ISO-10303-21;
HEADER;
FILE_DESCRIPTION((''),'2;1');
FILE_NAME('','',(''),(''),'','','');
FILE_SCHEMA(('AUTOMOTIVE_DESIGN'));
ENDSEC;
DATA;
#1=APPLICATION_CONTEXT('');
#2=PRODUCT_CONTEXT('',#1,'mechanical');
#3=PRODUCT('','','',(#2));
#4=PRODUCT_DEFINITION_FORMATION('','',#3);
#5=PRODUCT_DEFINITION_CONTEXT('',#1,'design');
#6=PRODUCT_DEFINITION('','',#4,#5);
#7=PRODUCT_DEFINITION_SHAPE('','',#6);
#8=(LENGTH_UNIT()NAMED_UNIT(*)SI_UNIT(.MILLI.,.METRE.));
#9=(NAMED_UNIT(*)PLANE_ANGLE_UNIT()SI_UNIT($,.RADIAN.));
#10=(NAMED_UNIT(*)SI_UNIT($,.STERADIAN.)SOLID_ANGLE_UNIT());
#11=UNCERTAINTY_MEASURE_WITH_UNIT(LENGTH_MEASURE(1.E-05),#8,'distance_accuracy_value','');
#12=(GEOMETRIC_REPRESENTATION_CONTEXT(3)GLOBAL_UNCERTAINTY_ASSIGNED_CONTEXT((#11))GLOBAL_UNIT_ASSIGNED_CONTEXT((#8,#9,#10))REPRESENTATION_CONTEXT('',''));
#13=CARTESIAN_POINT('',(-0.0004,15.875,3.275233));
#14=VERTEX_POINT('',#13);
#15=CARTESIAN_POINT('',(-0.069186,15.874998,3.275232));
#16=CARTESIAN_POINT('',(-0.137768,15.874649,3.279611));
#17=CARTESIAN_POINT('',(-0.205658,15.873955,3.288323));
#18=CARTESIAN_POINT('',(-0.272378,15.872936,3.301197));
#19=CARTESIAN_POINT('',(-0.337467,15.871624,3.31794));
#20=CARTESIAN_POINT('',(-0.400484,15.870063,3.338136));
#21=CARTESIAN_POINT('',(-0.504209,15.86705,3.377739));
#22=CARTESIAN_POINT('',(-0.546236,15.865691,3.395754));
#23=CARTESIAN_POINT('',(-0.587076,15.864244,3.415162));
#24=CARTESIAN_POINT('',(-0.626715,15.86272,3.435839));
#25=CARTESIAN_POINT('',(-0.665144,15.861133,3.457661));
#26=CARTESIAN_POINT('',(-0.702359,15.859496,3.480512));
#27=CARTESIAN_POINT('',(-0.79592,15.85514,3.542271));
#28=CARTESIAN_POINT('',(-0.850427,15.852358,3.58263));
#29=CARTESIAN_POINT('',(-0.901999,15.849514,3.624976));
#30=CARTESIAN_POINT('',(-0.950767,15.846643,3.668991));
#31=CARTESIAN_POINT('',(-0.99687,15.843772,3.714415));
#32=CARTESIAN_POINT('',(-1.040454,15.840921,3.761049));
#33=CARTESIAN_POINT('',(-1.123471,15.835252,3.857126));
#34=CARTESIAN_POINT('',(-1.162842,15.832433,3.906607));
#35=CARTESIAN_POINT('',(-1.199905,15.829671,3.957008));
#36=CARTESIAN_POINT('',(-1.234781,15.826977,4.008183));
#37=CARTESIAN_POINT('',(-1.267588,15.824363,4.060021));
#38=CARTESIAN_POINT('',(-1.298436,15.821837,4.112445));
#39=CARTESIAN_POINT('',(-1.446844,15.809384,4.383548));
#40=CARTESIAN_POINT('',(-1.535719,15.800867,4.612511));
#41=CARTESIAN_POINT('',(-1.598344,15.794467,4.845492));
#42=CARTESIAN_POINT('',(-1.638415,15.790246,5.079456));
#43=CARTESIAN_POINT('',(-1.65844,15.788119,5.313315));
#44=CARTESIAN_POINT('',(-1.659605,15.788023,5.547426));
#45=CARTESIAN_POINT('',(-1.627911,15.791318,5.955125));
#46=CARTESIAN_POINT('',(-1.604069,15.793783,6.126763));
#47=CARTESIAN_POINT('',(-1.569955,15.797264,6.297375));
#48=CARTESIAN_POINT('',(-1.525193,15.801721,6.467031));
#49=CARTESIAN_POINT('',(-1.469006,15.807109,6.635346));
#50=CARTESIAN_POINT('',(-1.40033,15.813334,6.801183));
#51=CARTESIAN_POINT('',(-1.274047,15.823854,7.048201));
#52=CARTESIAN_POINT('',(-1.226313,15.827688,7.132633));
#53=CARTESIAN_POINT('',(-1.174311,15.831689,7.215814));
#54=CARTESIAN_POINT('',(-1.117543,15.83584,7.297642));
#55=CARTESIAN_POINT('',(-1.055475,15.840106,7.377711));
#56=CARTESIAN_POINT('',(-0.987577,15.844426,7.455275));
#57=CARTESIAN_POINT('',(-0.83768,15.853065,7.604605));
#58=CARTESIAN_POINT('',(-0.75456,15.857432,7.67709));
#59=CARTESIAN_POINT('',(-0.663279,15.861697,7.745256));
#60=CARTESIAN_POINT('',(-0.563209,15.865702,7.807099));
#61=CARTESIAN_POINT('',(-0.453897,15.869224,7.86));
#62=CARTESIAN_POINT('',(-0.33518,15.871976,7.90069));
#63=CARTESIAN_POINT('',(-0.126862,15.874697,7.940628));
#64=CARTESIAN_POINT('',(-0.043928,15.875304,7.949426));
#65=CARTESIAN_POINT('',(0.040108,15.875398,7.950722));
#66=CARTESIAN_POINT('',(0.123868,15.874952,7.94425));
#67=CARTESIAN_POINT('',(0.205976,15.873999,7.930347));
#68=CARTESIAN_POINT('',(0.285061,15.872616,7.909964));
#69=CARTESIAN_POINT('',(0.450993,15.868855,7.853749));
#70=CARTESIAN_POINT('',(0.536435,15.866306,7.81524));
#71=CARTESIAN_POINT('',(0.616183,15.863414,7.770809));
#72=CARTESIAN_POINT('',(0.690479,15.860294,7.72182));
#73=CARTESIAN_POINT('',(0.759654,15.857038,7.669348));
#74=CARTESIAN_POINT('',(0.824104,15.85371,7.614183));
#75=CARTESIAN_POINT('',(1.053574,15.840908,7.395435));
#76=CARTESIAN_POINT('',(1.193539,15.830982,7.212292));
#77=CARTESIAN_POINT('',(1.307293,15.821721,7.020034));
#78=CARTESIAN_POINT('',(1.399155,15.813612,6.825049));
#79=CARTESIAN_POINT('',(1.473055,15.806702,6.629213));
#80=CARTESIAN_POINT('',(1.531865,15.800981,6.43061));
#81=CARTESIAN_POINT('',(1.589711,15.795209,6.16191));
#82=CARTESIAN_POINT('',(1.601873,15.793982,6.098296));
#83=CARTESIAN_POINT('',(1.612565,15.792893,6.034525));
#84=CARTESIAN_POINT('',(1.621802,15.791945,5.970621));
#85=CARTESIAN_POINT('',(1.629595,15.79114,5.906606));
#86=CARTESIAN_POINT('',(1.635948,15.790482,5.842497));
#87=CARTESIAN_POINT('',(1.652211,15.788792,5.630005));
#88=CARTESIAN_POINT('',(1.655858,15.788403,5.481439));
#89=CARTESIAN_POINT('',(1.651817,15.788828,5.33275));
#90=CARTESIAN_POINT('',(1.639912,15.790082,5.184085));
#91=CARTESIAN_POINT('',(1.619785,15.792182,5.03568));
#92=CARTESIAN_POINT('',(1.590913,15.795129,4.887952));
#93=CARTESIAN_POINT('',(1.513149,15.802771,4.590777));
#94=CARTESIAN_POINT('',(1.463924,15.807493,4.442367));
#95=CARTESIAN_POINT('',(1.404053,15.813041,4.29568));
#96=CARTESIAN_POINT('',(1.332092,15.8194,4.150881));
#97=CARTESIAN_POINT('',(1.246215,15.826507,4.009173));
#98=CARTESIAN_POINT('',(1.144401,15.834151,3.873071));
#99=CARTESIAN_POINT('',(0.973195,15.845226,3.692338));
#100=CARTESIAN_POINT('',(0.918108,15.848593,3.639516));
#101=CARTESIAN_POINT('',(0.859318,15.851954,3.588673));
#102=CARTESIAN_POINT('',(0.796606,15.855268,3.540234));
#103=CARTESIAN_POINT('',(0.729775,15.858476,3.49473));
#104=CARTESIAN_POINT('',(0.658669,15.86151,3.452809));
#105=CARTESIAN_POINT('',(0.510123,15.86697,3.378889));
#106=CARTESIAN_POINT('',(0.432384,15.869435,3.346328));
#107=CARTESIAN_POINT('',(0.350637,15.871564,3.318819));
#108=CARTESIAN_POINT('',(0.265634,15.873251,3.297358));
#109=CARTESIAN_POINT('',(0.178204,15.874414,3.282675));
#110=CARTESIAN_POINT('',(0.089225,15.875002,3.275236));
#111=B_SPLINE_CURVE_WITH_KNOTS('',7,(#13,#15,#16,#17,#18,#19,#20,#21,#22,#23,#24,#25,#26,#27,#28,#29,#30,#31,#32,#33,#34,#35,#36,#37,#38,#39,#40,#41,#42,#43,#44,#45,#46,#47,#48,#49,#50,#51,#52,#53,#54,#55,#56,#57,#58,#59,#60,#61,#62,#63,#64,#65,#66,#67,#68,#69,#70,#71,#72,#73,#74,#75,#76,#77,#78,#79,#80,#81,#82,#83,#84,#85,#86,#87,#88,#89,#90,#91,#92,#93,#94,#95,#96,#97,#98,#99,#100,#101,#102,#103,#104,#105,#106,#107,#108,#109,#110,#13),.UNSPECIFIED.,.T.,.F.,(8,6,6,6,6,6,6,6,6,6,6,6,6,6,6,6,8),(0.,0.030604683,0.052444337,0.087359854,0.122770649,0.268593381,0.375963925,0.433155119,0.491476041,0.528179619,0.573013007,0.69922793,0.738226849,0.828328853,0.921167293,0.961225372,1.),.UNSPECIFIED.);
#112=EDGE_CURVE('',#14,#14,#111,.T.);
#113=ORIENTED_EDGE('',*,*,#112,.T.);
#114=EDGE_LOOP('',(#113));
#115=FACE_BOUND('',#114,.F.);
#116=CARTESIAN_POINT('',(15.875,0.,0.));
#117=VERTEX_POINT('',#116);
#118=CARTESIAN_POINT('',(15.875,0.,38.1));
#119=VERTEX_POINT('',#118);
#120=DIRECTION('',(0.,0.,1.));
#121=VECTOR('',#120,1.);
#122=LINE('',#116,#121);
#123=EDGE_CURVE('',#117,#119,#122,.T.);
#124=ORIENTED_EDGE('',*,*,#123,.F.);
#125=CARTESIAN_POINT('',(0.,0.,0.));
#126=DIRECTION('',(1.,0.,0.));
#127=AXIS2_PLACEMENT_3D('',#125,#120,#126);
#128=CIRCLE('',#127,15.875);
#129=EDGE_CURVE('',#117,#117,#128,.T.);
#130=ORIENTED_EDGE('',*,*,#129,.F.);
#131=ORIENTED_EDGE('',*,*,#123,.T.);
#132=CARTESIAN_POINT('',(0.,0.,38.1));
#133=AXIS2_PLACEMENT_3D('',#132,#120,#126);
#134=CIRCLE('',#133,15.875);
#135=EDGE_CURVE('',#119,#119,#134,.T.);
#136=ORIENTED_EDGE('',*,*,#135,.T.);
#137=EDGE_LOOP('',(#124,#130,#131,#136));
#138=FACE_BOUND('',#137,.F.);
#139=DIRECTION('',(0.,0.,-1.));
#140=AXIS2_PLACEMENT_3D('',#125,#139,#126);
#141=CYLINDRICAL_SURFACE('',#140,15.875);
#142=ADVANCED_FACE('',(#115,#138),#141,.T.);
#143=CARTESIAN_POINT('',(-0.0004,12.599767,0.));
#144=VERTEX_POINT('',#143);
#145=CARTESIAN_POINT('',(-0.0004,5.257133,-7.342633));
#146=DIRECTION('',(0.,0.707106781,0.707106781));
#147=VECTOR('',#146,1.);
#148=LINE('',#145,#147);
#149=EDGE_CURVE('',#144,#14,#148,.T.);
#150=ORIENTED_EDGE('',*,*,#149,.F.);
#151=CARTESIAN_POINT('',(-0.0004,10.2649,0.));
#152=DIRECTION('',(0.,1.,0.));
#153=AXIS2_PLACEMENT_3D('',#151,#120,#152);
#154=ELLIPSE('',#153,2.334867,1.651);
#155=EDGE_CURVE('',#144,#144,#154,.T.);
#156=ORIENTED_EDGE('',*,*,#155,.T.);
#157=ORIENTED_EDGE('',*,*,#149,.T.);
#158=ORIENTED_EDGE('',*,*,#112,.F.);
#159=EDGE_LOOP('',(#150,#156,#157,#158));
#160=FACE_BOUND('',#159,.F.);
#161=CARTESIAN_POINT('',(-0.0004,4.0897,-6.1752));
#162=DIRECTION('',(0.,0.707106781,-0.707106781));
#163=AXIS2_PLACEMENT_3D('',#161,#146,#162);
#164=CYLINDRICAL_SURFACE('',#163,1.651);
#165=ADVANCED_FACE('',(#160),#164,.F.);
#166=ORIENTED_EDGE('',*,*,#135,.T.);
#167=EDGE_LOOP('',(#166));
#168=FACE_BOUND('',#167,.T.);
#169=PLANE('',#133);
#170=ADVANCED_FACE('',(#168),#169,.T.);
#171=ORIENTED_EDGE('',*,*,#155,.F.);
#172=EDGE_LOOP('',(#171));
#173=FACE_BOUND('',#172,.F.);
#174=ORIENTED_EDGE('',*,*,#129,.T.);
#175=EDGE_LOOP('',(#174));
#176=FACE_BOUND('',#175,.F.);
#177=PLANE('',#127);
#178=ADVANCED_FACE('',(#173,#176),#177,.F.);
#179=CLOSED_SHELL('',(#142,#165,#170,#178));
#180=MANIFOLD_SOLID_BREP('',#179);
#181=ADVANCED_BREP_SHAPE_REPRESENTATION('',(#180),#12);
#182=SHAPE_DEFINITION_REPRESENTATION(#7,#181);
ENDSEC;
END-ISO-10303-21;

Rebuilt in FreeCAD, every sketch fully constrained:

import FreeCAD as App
import Part
import Sketcher

V = App.Vector
Q = App.Units.Quantity

doc = App.newDocument("Part")
params = doc.addObject("Spreadsheet::Sheet", "Params")
for row, (alias, value) in enumerate([
    ("sketch1_diameter", "1.25 in"),
    ("pad1_length", "1.5 in"),
    ("sketch2_diameter", "0.125 in"),
    ("pad2_length", "1 in"),
    ("sketch3_diameter", "0.13 in"),
    ("hole_diameter", "0.13 in"),
    ("hole_depth", "1 in"),
], start=1):
    params.set(f"A{row}", alias)
    params.set(f"B{row}", "=" + value)
    params.setAlias(f"B{row}", alias)

body = doc.addObject("PartDesign::Body", "Body")

# Sketch on XY plane
sketch1 = body.newObject("Sketcher::SketchObject", "Sketch")
sketch1.AttachmentSupport = (doc.getObject("XY_Plane"), [""])
sketch1.MapMode = "FlatFace"
sketch1.addGeometry(Part.Circle(V(0, 0, 0), V(0, 0, 1), 16), False)
sketch1.addConstraint([
    Sketcher.Constraint("Coincident", 0, 3, -1, 1),
    Sketcher.Constraint("Diameter", 0, Q("1.25 in")),
])
sketch1.setExpression("Constraints[1]", "Params.sketch1_diameter")
pad1 = body.newObject("PartDesign::Pad", "Pad")
pad1.Profile = sketch1
pad1.setExpression("Length", "Params.pad1_length")

# Sketch on an angled plane
sketch2 = body.newObject("Sketcher::SketchObject", "Sketch001")
sketch2.Placement = App.Placement(V(0, 15.875, 0), App.Rotation(V(-1, 0, 0), V(0, -0.707106781, 0.707106781), V(0, 0.707106781, 0.707106781), "ZXY"))
sketch2.addGeometry(Part.Circle(V(0, 4, 0), V(0, 0, 1), 1.6), False)
sketch2.addConstraint([
    Sketcher.Constraint("PointOnObject", 0, 3, -2),
    Sketcher.Constraint("Diameter", 0, Q("0.125 in")),
    Sketcher.Constraint("DistanceY", -1, 1, 0, 3, 3.9683),
])
sketch2.setExpression("Constraints[1]", "Params.sketch2_diameter")
pad2 = body.newObject("PartDesign::Pad", "Pad001")
pad2.Profile = sketch2
pad2.setExpression("Length", "Params.pad2_length")
pad2.Midplane = True

# Sketch on an angled plane
sketch3 = body.newObject("Sketcher::SketchObject", "Sketch002")
sketch3.Placement = App.Placement(V(0, -1.04275, -1.04275), App.Rotation(V(0, 0.707106781, -0.707106781), V(0.999999999, 0, 0), V(0, -0.707106781, -0.707106781), "ZXY"))
sketch3.addGeometry(Part.Circle(V(7.3, 0, 0), V(0, 0, 1), 1.7), False)
sketch3.addConstraint([
    Sketcher.Constraint("Diameter", 0, Q("0.13 in")),
    Sketcher.Constraint("DistanceX", -1, 1, 0, 3, 7.2584),
    Sketcher.Constraint("DistanceY", 0, 3, -1, 1, 0.0004),
])
sketch3.setExpression("Constraints[0]", "Params.sketch3_diameter")
doc.recompute()
hole = body.newObject("PartDesign::Hole", "Hole")
hole.Profile = sketch3
hole.ThreadType = "None"
hole.setExpression("Diameter", "Params.hole_diameter")
hole.DepthType = "Dimension"
hole.setExpression("Depth", "Params.hole_depth")
hole.DrillPoint = "Angled"
hole.DrillPointAngle = 118

doc.recompute()
